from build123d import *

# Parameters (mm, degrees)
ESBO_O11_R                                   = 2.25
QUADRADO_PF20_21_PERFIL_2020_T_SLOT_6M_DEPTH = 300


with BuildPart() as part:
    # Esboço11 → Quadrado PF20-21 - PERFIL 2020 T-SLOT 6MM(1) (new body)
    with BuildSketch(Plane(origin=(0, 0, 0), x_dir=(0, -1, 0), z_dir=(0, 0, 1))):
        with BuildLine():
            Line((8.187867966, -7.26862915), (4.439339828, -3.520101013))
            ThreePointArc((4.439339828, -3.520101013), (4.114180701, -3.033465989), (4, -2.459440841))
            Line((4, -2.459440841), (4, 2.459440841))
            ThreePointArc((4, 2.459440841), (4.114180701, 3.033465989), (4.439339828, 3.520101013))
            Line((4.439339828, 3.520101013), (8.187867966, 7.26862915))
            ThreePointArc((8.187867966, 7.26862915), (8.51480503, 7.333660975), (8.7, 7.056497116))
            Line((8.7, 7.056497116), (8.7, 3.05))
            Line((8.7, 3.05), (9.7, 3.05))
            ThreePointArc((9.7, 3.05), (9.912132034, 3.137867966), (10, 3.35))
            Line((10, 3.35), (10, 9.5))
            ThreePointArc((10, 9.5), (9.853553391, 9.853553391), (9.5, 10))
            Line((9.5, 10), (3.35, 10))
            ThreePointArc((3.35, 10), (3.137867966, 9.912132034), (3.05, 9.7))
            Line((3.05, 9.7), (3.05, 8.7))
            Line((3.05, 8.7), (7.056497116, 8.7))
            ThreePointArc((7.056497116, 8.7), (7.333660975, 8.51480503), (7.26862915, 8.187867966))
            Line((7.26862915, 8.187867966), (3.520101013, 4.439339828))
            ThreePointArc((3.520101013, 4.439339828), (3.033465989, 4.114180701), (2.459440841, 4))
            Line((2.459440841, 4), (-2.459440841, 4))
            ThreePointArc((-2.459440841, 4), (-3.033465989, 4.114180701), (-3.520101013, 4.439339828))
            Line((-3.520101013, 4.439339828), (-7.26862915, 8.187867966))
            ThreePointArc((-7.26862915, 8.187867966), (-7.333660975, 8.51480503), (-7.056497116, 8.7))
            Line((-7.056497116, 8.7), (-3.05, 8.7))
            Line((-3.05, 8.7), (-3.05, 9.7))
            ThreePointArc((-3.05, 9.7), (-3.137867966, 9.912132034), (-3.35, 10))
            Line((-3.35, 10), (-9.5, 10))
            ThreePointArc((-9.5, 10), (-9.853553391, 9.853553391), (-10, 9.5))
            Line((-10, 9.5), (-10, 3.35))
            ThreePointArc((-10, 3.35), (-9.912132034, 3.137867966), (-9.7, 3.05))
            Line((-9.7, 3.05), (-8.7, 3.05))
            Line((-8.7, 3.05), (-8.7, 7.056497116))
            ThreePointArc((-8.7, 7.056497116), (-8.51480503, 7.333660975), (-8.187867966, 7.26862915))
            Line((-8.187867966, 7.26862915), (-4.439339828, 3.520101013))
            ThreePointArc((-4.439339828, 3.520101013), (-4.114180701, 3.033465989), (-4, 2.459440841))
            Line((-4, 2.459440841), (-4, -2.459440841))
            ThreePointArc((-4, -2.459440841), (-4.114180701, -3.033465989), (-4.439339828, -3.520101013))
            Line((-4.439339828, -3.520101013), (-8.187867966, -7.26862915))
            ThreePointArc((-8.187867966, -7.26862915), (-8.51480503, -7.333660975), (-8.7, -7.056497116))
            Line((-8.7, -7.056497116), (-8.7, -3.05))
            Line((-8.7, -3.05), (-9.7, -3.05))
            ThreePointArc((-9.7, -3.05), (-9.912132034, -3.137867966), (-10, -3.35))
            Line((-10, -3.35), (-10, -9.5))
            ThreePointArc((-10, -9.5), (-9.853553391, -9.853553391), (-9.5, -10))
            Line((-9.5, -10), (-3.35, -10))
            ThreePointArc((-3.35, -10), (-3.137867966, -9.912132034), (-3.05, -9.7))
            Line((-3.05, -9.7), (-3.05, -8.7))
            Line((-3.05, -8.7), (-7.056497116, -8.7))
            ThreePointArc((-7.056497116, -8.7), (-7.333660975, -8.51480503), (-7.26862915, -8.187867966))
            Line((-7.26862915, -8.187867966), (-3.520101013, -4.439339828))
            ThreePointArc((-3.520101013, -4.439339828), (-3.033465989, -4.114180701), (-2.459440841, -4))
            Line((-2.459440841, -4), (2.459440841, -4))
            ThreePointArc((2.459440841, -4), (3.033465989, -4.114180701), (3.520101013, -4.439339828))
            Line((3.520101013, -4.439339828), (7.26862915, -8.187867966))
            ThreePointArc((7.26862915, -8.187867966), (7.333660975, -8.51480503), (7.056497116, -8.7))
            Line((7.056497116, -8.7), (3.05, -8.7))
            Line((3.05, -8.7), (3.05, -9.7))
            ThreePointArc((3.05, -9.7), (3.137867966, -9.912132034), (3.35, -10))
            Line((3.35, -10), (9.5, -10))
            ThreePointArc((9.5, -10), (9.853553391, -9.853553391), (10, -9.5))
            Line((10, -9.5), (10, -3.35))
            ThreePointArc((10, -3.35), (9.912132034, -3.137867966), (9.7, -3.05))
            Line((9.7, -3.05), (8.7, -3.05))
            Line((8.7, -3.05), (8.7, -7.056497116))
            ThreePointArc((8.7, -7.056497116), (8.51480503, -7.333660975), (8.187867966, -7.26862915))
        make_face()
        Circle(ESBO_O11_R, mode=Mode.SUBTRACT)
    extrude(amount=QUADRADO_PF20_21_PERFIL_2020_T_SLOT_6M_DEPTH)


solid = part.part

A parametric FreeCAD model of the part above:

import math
import FreeCAD as App
import Part
import Sketcher

V = App.Vector

doc = App.newDocument("Part")
body = doc.addObject("PartDesign::Body", "Body")

# Sketch on XY plane
sketch1 = body.newObject("Sketcher::SketchObject", "Sketch")
sketch1.AttachmentSupport = (doc.getObject("XY_Plane"), [""])
sketch1.MapMode = "FlatFace"
sketch1.addGeometry(Part.LineSegment(V(-7.27, -8.19, 0), V(-3.52, -4.44, 0)), False)
sketch1.addGeometry(Part.ArcOfCircle(Part.Circle(V(-2.46, -5.5, 0), V(0, 0, 1), 1.5), math.radians(90), math.radians(135)), False)
sketch1.addGeometry(Part.LineSegment(V(-2.46, -4, 0), V(2.46, -4, 0)), False)
sketch1.addGeometry(Part.ArcOfCircle(Part.Circle(V(2.46, -5.5, 0), V(0, 0, 1), 1.5), math.radians(45), math.radians(90)), False)
sketch1.addGeometry(Part.LineSegment(V(3.52, -4.44, 0), V(7.27, -8.19, 0)), False)
sketch1.addGeometry(Part.ArcOfCircle(Part.Circle(V(7.06, -8.4, 0), V(0, 0, 1), 0.3), math.radians(-90), math.radians(45)), False)
sketch1.addGeometry(Part.LineSegment(V(7.06, -8.7, 0), V(3.05, -8.7, 0)), False)
sketch1.addGeometry(Part.LineSegment(V(3.05, -8.7, 0), V(3.05, -9.7, 0)), False)
sketch1.addGeometry(Part.ArcOfCircle(Part.Circle(V(3.35, -9.7, 0), V(0, 0, 1), 0.3), math.radians(-180), math.radians(-90)), False)
sketch1.addGeometry(Part.LineSegment(V(3.35, -10, 0), V(9.5, -10, 0)), False)
sketch1.addGeometry(Part.ArcOfCircle(Part.Circle(V(9.5, -9.5, 0), V(0, 0, 1), 0.5), math.radians(-90), math.radians(0)), False)
sketch1.addGeometry(Part.LineSegment(V(10, -9.5, 0), V(10, -3.35, 0)), False)
sketch1.addGeometry(Part.ArcOfCircle(Part.Circle(V(9.7, -3.35, 0), V(0, 0, 1), 0.3), math.radians(0), math.radians(90)), False)
sketch1.addGeometry(Part.LineSegment(V(9.7, -3.05, 0), V(8.7, -3.05, 0)), False)
sketch1.addGeometry(Part.LineSegment(V(8.7, -3.05, 0), V(8.7, -7.06, 0)), False)
sketch1.addGeometry(Part.ArcOfCircle(Part.Circle(V(8.4, -7.06, 0), V(0, 0, 1), 0.3), math.radians(-135), math.radians(0)), False)
sketch1.addGeometry(Part.LineSegment(V(8.19, -7.27, 0), V(4.44, -3.52, 0)), False)
sketch1.addGeometry(Part.ArcOfCircle(Part.Circle(V(5.5, -2.46, 0), V(0, 0, 1), 1.5), math.radians(180), math.radians(225)), False)
sketch1.addGeometry(Part.LineSegment(V(4, -2.46, 0), V(4, 2.46, 0)), False)
sketch1.addGeometry(Part.ArcOfCircle(Part.Circle(V(5.5, 2.46, 0), V(0, 0, 1), 1.5), math.radians(135), math.radians(180)), False)
sketch1.addGeometry(Part.LineSegment(V(4.44, 3.52, 0), V(8.19, 7.27, 0)), False)
sketch1.addGeometry(Part.ArcOfCircle(Part.Circle(V(8.4, 7.06, 0), V(0, 0, 1), 0.3), math.radians(0), math.radians(135)), False)
sketch1.addGeometry(Part.LineSegment(V(8.7, 7.06, 0), V(8.7, 3.05, 0)), False)
sketch1.addGeometry(Part.LineSegment(V(8.7, 3.05, 0), V(9.7, 3.05, 0)), False)
sketch1.addGeometry(Part.ArcOfCircle(Part.Circle(V(9.7, 3.35, 0), V(0, 0, 1), 0.3), math.radians(-90), math.radians(0)), False)
sketch1.addGeometry(Part.LineSegment(V(10, 3.35, 0), V(10, 9.5, 0)), False)
sketch1.addGeometry(Part.ArcOfCircle(Part.Circle(V(9.5, 9.5, 0), V(0, 0, 1), 0.5), math.radians(0), math.radians(90)), False)
sketch1.addGeometry(Part.LineSegment(V(9.5, 10, 0), V(3.35, 10, 0)), False)
sketch1.addGeometry(Part.ArcOfCircle(Part.Circle(V(3.35, 9.7, 0), V(0, 0, 1), 0.3), math.radians(90), math.radians(180)), False)
sketch1.addGeometry(Part.LineSegment(V(3.05, 9.7, 0), V(3.05, 8.7, 0)), False)
sketch1.addGeometry(Part.LineSegment(V(3.05, 8.7, 0), V(7.06, 8.7, 0)), False)
sketch1.addGeometry(Part.ArcOfCircle(Part.Circle(V(7.06, 8.4, 0), V(0, 0, 1), 0.3), math.radians(-45), math.radians(90)), False)
sketch1.addGeometry(Part.LineSegment(V(7.27, 8.19, 0), V(3.52, 4.44, 0)), False)
sketch1.addGeometry(Part.ArcOfCircle(Part.Circle(V(2.46, 5.5, 0), V(0, 0, 1), 1.5), math.radians(-90), math.radians(-45)), False)
sketch1.addGeometry(Part.LineSegment(V(2.46, 4, 0), V(-2.46, 4, 0)), False)
sketch1.addGeometry(Part.ArcOfCircle(Part.Circle(V(-2.46, 5.5, 0), V(0, 0, 1), 1.5), math.radians(-135), math.radians(-90)), False)
sketch1.addGeometry(Part.LineSegment(V(-3.52, 4.44, 0), V(-7.27, 8.19, 0)), False)
sketch1.addGeometry(Part.ArcOfCircle(Part.Circle(V(-7.06, 8.4, 0), V(0, 0, 1), 0.3), math.radians(90), math.radians(225)), False)
sketch1.addGeometry(Part.LineSegment(V(-7.06, 8.7, 0), V(-3.05, 8.7, 0)), False)
sketch1.addGeometry(Part.LineSegment(V(-3.05, 8.7, 0), V(-3.05, 9.7, 0)), False)
sketch1.addGeometry(Part.ArcOfCircle(Part.Circle(V(-3.35, 9.7, 0), V(0, 0, 1), 0.3), math.radians(0), math.radians(90)), False)
sketch1.addGeometry(Part.LineSegment(V(-3.35, 10, 0), V(-9.5, 10, 0)), False)
sketch1.addGeometry(Part.ArcOfCircle(Part.Circle(V(-9.5, 9.5, 0), V(0, 0, 1), 0.5), math.radians(90), math.radians(180)), False)
sketch1.addGeometry(Part.LineSegment(V(-10, 9.5, 0), V(-10, 3.35, 0)), False)
sketch1.addGeometry(Part.ArcOfCircle(Part.Circle(V(-9.7, 3.35, 0), V(0, 0, 1), 0.3), math.radians(-180), math.radians(-90)), False)
sketch1.addGeometry(Part.LineSegment(V(-9.7, 3.05, 0), V(-8.7, 3.05, 0)), False)
sketch1.addGeometry(Part.LineSegment(V(-8.7, 3.05, 0), V(-8.7, 7.06, 0)), False)
sketch1.addGeometry(Part.ArcOfCircle(Part.Circle(V(-8.4, 7.06, 0), V(0, 0, 1), 0.3), math.radians(45), math.radians(180)), False)
sketch1.addGeometry(Part.LineSegment(V(-8.19, 7.27, 0), V(-4.44, 3.52, 0)), False)
sketch1.addGeometry(Part.ArcOfCircle(Part.Circle(V(-5.5, 2.46, 0), V(0, 0, 1), 1.5), math.radians(0), math.radians(45)), False)
sketch1.addGeometry(Part.LineSegment(V(-4, 2.46, 0), V(-4, -2.46, 0)), False)
sketch1.addGeometry(Part.ArcOfCircle(Part.Circle(V(-5.5, -2.46, 0), V(0, 0, 1), 1.5), math.radians(-45), math.radians(0)), False)
sketch1.addGeometry(Part.LineSegment(V(-4.44, -3.52, 0), V(-8.19, -7.27, 0)), False)
sketch1.addGeometry(Part.ArcOfCircle(Part.Circle(V(-8.4, -7.06, 0), V(0, 0, 1), 0.3), math.radians(-180), math.radians(-45)), False)
sketch1.addGeometry(Part.LineSegment(V(-8.7, -7.06, 0), V(-8.7, -3.05, 0)), False)
sketch1.addGeometry(Part.LineSegment(V(-8.7, -3.05, 0), V(-9.7, -3.05, 0)), False)
sketch1.addGeometry(Part.ArcOfCircle(Part.Circle(V(-9.7, -3.35, 0), V(0, 0, 1), 0.3), math.radians(90), math.radians(180)), False)
sketch1.addGeometry(Part.LineSegment(V(-10, -3.35, 0), V(-10, -9.5, 0)), False)
sketch1.addGeometry(Part.ArcOfCircle(Part.Circle(V(-9.5, -9.5, 0), V(0, 0, 1), 0.5), math.radians(180), math.radians(270)), False)
sketch1.addGeometry(Part.LineSegment(V(-9.5, -10, 0), V(-3.35, -10, 0)), False)
sketch1.addGeometry(Part.ArcOfCircle(Part.Circle(V(-3.35, -9.7, 0), V(0, 0, 1), 0.3), math.radians(-90), math.radians(0)), False)
sketch1.addGeometry(Part.LineSegment(V(-3.05, -9.7, 0), V(-3.05, -8.7, 0)), False)
sketch1.addGeometry(Part.LineSegment(V(-3.05, -8.7, 0), V(-7.06, -8.7, 0)), False)
sketch1.addGeometry(Part.ArcOfCircle(Part.Circle(V(-7.06, -8.4, 0), V(0, 0, 1), 0.3), math.radians(135), math.radians(270)), False)
sketch1.addGeometry(Part.Circle(V(0, 0, 0), V(0, 0, 1), 2.25), False)
sketch1.addConstraint(Sketcher.Constraint("Tangent", 0, 2, 1, 2))
sketch1.addConstraint(Sketcher.Constraint("Tangent", 1, 1, 2, 1))
sketch1.addConstraint(Sketcher.Constraint("Tangent", 2, 2, 3, 2))
sketch1.addConstraint(Sketcher.Constraint("Tangent", 3, 1, 4, 1))
sketch1.addConstraint(Sketcher.Constraint("Tangent", 4, 2, 5, 2))
sketch1.addConstraint(Sketcher.Constraint("Tangent", 5, 1, 6, 1))
sketch1.addConstraint(Sketcher.Constraint("Coincident", 6, 2, 7, 1))
sketch1.addConstraint(Sketcher.Constraint("Tangent", 7, 2, 8, 1))
sketch1.addConstraint(Sketcher.Constraint("Tangent", 8, 2, 9, 1))
sketch1.addConstraint(Sketcher.Constraint("Tangent", 9, 2, 10, 1))
sketch1.addConstraint(Sketcher.Constraint("Tangent", 10, 2, 11, 1))
sketch1.addConstraint(Sketcher.Constraint("Tangent", 11, 2, 12, 1))
sketch1.addConstraint(Sketcher.Constraint("Tangent", 12, 2, 13, 1))
sketch1.addConstraint(Sketcher.Constraint("Coincident", 13, 2, 14, 1))
sketch1.addConstraint(Sketcher.Constraint("Tangent", 14, 2, 15, 2))
sketch1.addConstraint(Sketcher.Constraint("Tangent", 15, 1, 16, 1))
sketch1.addConstraint(Sketcher.Constraint("Tangent", 16, 2, 17, 2))
sketch1.addConstraint(Sketcher.Constraint("Tangent", 17, 1, 18, 1))
sketch1.addConstraint(Sketcher.Constraint("Tangent", 18, 2, 19, 2))
sketch1.addConstraint(Sketcher.Constraint("Tangent", 19, 1, 20, 1))
sketch1.addConstraint(Sketcher.Constraint("Tangent", 20, 2, 21, 2))
sketch1.addConstraint(Sketcher.Constraint("Tangent", 21, 1, 22, 1))
sketch1.addConstraint(Sketcher.Constraint("Coincident", 22, 2, 23, 1))
sketch1.addConstraint(Sketcher.Constraint("Tangent", 23, 2, 24, 1))
sketch1.addConstraint(Sketcher.Constraint("Tangent", 24, 2, 25, 1))
sketch1.addConstraint(Sketcher.Constraint("Tangent", 25, 2, 26, 1))
sketch1.addConstraint(Sketcher.Constraint("Tangent", 26, 2, 27, 1))
sketch1.addConstraint(Sketcher.Constraint("Tangent", 27, 2, 28, 1))
sketch1.addConstraint(Sketcher.Constraint("Tangent", 28, 2, 29, 1))
sketch1.addConstraint(Sketcher.Constraint("Coincident", 29, 2, 30, 1))
sketch1.addConstraint(Sketcher.Constraint("Tangent", 30, 2, 31, 2))
sketch1.addConstraint(Sketcher.Constraint("Tangent", 31, 1, 32, 1))
sketch1.addConstraint(Sketcher.Constraint("Tangent", 32, 2, 33, 2))
sketch1.addConstraint(Sketcher.Constraint("Tangent", 33, 1, 34, 1))
sketch1.addConstraint(Sketcher.Constraint("Tangent", 34, 2, 35, 2))
sketch1.addConstraint(Sketcher.Constraint("Tangent", 35, 1, 36, 1))
sketch1.addConstraint(Sketcher.Constraint("Tangent", 36, 2, 37, 2))
sketch1.addConstraint(Sketcher.Constraint("Tangent", 37, 1, 38, 1))
sketch1.addConstraint(Sketcher.Constraint("Coincident", 38, 2, 39, 1))
sketch1.addConstraint(Sketcher.Constraint("Tangent", 39, 2, 40, 1))
sketch1.addConstraint(Sketcher.Constraint("Tangent", 40, 2, 41, 1))
sketch1.addConstraint(Sketcher.Constraint("Tangent", 41, 2, 42, 1))
sketch1.addConstraint(Sketcher.Constraint("Tangent", 42, 2, 43, 1))
sketch1.addConstraint(Sketcher.Constraint("Tangent", 43, 2, 44, 1))
sketch1.addConstraint(Sketcher.Constraint("Tangent", 44, 2, 45, 1))
sketch1.addConstraint(Sketcher.Constraint("Coincident", 45, 2, 46, 1))
sketch1.addConstraint(Sketcher.Constraint("Tangent", 46, 2, 47, 2))
sketch1.addConstraint(Sketcher.Constraint("Tangent", 47, 1, 48, 1))
sketch1.addConstraint(Sketcher.Constraint("Tangent", 48, 2, 49, 2))
sketch1.addConstraint(Sketcher.Constraint("Tangent", 49, 1, 50, 1))
sketch1.addConstraint(Sketcher.Constraint("Tangent", 50, 2, 51, 2))
sketch1.addConstraint(Sketcher.Constraint("Tangent", 51, 1, 52, 1))
sketch1.addConstraint(Sketcher.Constraint("Tangent", 52, 2, 53, 2))
sketch1.addConstraint(Sketcher.Constraint("Tangent", 53, 1, 54, 1))
sketch1.addConstraint(Sketcher.Constraint("Coincident", 54, 2, 55, 1))
sketch1.addConstraint(Sketcher.Constraint("Tangent", 55, 2, 56, 1))
sketch1.addConstraint(Sketcher.Constraint("Tangent", 56, 2, 57, 1))
sketch1.addConstraint(Sketcher.Constraint("Tangent", 57, 2, 58, 1))
sketch1.addConstraint(Sketcher.Constraint("Tangent", 58, 2, 59, 1))
sketch1.addConstraint(Sketcher.Constraint("Tangent", 59, 2, 60, 1))
sketch1.addConstraint(Sketcher.Constraint("Tangent", 60, 2, 61, 1))
sketch1.addConstraint(Sketcher.Constraint("Coincident", 61, 2, 62, 1))
sketch1.addConstraint(Sketcher.Constraint("Tangent", 62, 2, 63, 2))
sketch1.addConstraint(Sketcher.Constraint("Tangent", 63, 1, 0, 1))
sketch1.addConstraint(Sketcher.Constraint("Horizontal", 2))
sketch1.addConstraint(Sketcher.Constraint("Horizontal", 6))
sketch1.addConstraint(Sketcher.Constraint("Vertical", 7))
sketch1.addConstraint(Sketcher.Constraint("Horizontal", 9))
sketch1.addConstraint(Sketcher.Constraint("Vertical", 11))
sketch1.addConstraint(Sketcher.Constraint("Horizontal", 13))
sketch1.addConstraint(Sketcher.Constraint("Vertical", 14))
sketch1.addConstraint(Sketcher.Constraint("Vertical", 18))
sketch1.addConstraint(Sketcher.Constraint("Vertical", 22))
sketch1.addConstraint(Sketcher.Constraint("Horizontal", 23))
sketch1.addConstraint(Sketcher.Constraint("Vertical", 25))
sketch1.addConstraint(Sketcher.Constraint("Horizontal", 27))
sketch1.addConstraint(Sketcher.Constraint("Vertical", 29))
sketch1.addConstraint(Sketcher.Constraint("Horizontal", 30))
sketch1.addConstraint(Sketcher.Constraint("Horizontal", 34))
sketch1.addConstraint(Sketcher.Constraint("Horizontal", 38))
sketch1.addConstraint(Sketcher.Constraint("Vertical", 39))
sketch1.addConstraint(Sketcher.Constraint("Horizontal", 41))
sketch1.addConstraint(Sketcher.Constraint("Vertical", 43))
sketch1.addConstraint(Sketcher.Constraint("Horizontal", 45))
sketch1.addConstraint(Sketcher.Constraint("Vertical", 46))
sketch1.addConstraint(Sketcher.Constraint("Vertical", 50))
sketch1.addConstraint(Sketcher.Constraint("Vertical", 54))
sketch1.addConstraint(Sketcher.Constraint("Horizontal", 55))
sketch1.addConstraint(Sketcher.Constraint("Vertical", 57))
sketch1.addConstraint(Sketcher.Constraint("Horizontal", 59))
sketch1.addConstraint(Sketcher.Constraint("Vertical", 61))
sketch1.addConstraint(Sketcher.Constraint("Horizontal", 62))
sketch1.addConstraint(Sketcher.Constraint("Coincident", 64, 3, -1, 1))
sketch1.addConstraint(Sketcher.Constraint("Equal", 1, 3))
sketch1.addConstraint(Sketcher.Constraint("Equal", 5, 8))
sketch1.addConstraint(Sketcher.Constraint("Equal", 8, 12))
sketch1.addConstraint(Sketcher.Constraint("Equal", 12, 15))
sketch1.addConstraint(Sketcher.Constraint("Equal", 3, 17))
sketch1.addConstraint(Sketcher.Constraint("Equal", 17, 19))
sketch1.addConstraint(Sketcher.Constraint("Equal", 15, 21))
sketch1.addConstraint(Sketcher.Constraint("Equal", 21, 24))
sketch1.addConstraint(Sketcher.Constraint("Equal", 10, 26))
sketch1.addConstraint(Sketcher.Constraint("Equal", 24, 28))
sketch1.addConstraint(Sketcher.Constraint("Equal", 28, 31))
sketch1.addConstraint(Sketcher.Constraint("Equal", 19, 33))
sketch1.addConstraint(Sketcher.Constraint("Equal", 33, 35))
sketch1.addConstraint(Sketcher.Constraint("Equal", 31, 37))
sketch1.addConstraint(Sketcher.Constraint("Equal", 37, 40))
sketch1.addConstraint(Sketcher.Constraint("Equal", 26, 42))
sketch1.addConstraint(Sketcher.Constraint("Equal", 40, 44))
sketch1.addConstraint(Sketcher.Constraint("Equal", 44, 47))
sketch1.addConstraint(Sketcher.Constraint("Equal", 35, 49))
sketch1.addConstraint(Sketcher.Constraint("Equal", 49, 51))
sketch1.addConstraint(Sketcher.Constraint("Equal", 47, 53))
sketch1.addConstraint(Sketcher.Constraint("Equal", 53, 56))
sketch1.addConstraint(Sketcher.Constraint("Equal", 42, 58))
sketch1.addConstraint(Sketcher.Constraint("Equal", 56, 60))
sketch1.addConstraint(Sketcher.Constraint("Equal", 60, 63))
sketch1.addConstraint(Sketcher.Constraint("Symmetric", 1, 3, 33, 3, -1, 1))
sketch1.addConstraint(Sketcher.Constraint("Symmetric", 5, 3, 37, 3, -1, 1))
sketch1.addConstraint(Sketcher.Constraint("Symmetric", 8, 3, 40, 3, -1, 1))
sketch1.addConstraint(Sketcher.Constraint("Symmetric", 12, 3, 44, 3, -1, 1))
sketch1.addConstraint(Sketcher.Constraint("Symmetric", 15, 3, 47, 3, -1, 1))
sketch1.addConstraint(Sketcher.Constraint("Symmetric", 17, 3, 49, 3, -1, 1))
sketch1.addConstraint(Sketcher.Constraint("Symmetric", 21, 3, 53, 3, -1, 1))
sketch1.addConstraint(Sketcher.Constraint("Symmetric", 24, 3, 56, 3, -1, 1))
sketch1.addConstraint(Sketcher.Constraint("Symmetric", 28, 3, 60, 3, -1, 1))
sketch1.addConstraint(Sketcher.Constraint("Symmetric", 31, 3, 63, 3, -1, 1))
sketch1.addConstraint(Sketcher.Constraint("Symmetric", 31, 3, 37, 3, -2))
sketch1.addConstraint(Sketcher.Constraint("Symmetric", 28, 3, 40, 3, -2))
sketch1.addConstraint(Sketcher.Constraint("Symmetric", 24, 3, 44, 3, -2))
sketch1.addConstraint(Sketcher.Constraint("Symmetric", 21, 3, 47, 3, -2))
sketch1.addConstraint(Sketcher.Constraint("Perpendicular", 0, 4))
sketch1.addConstraint(Sketcher.Constraint("Parallel", 4, 16))
sketch1.addConstraint(Sketcher.Constraint("Perpendicular", 16, 20))
sketch1.addConstraint(Sketcher.Constraint("Perpendicular", 32, 36))
sketch1.addConstraint(Sketcher.Constraint("Perpendicular", 48, 52))
sketch1.addConstraint(Sketcher.Constraint("Horizontal", 19, 3, 49, 3))
sketch1.addConstraint(Sketcher.Constraint("Equal", 55, 7))
sketch1.addConstraint(Sketcher.Constraint("Equal", 59, 11))
sketch1.addConstraint(Sketcher.Constraint("Equal", 62, 14))
sketch1.addConstraint(Sketcher.Constraint("Equal", 34, 18))
sketch1.addConstraint(Sketcher.Constraint("Equal", 4, 16))
sketch1.addConstraint(Sketcher.Constraint("Diameter", 64, 4.5))
sketch1.addConstraint(Sketcher.Constraint("Radius", 1, 1.5))
sketch1.addConstraint(Sketcher.Constraint("Radius", 5, 0.3))
sketch1.addConstraint(Sketcher.Constraint("Radius", 10, 0.5))
sketch1.addConstraint(Sketcher.Constraint("DistanceX", 13, 2, 13, 1, 1.0))
sketch1.addConstraint(Sketcher.Constraint("DistanceY", 1, 1, -1, 1, 4.0))
sketch1.addConstraint(Sketcher.Constraint("DistanceY", 8, 2, -1, 1, 10.0))
sketch1.addConstraint(Sketcher.Constraint("DistanceX", 9, 1, 9, 2, 6.15))
sketch1.addConstraint(Sketcher.Constraint("DistanceX", 2, 1, 2, 2, 4.918882))
pad1 = body.newObject("PartDesign::Pad", "Pad")
pad1.Profile = sketch1
pad1.Length = 300

doc.recompute()
